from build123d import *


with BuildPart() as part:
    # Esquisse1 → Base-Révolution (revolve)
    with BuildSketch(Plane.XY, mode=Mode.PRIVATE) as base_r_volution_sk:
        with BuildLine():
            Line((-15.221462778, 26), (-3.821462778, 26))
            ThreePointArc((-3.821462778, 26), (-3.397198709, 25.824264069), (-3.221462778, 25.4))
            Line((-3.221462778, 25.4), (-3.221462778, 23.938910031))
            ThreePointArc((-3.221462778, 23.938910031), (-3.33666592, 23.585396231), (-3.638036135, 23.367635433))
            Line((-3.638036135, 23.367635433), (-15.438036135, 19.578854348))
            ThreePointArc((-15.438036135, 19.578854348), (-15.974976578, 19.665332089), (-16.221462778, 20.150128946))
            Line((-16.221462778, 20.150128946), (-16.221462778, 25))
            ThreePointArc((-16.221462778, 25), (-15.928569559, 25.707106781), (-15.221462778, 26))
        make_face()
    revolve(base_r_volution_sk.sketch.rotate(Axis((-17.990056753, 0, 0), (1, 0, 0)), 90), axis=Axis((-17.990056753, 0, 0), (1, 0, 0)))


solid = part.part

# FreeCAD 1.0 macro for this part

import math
import FreeCAD as App
import Part
import Sketcher

doc = App.newDocument("Part")
body = doc.addObject("PartDesign::Body", "Body")

sketch1 = body.newObject("Sketcher::SketchObject", "Sketch")
sketch1.AttachmentSupport = (doc.getObject("XY_Plane"), [""])
sketch1.MapMode = "FlatFace"
sketch1.addGeometry(Part.LineSegment(App.Vector(-3.8, 26, 0), App.Vector(-15.2, 26, 0)), False)
sketch1.addGeometry(Part.ArcOfCircle(Part.Circle(App.Vector(-15.2, 25, 0), App.Vector(0, 0, 1), 1), math.radians(90), math.radians(180)), False)
sketch1.addGeometry(Part.LineSegment(App.Vector(-16.2, 25, 0), App.Vector(-16.2, 20.2, 0)), False)
sketch1.addGeometry(Part.ArcOfCircle(Part.Circle(App.Vector(-15.6, 20.2, 0), App.Vector(0, 0, 1), 0.6), math.radians(-180), math.radians(-72)), False)
sketch1.addGeometry(Part.LineSegment(App.Vector(-15.4, 19.6, 0), App.Vector(-3.6, 23.4, 0)), False)
sketch1.addGeometry(Part.ArcOfCircle(Part.Circle(App.Vector(-3.8, 23.9, 0), App.Vector(0, 0, 1), 0.6), math.radians(-72), math.radians(0)), False)
sketch1.addGeometry(Part.LineSegment(App.Vector(-3.2, 23.9, 0), App.Vector(-3.2, 25.4, 0)), False)
sketch1.addGeometry(Part.ArcOfCircle(Part.Circle(App.Vector(-3.8, 25.4, 0), App.Vector(0, 0, 1), 0.6), math.radians(0), math.radians(90)), False)
sketch1.addConstraint(Sketcher.Constraint("Tangent", 0, 2, 1, 1))
sketch1.addConstraint(Sketcher.Constraint("Tangent", 1, 2, 2, 1))
sketch1.addConstraint(Sketcher.Constraint("Tangent", 2, 2, 3, 1))
sketch1.addConstraint(Sketcher.Constraint("Tangent", 3, 2, 4, 1))
sketch1.addConstraint(Sketcher.Constraint("Tangent", 4, 2, 5, 1))
sketch1.addConstraint(Sketcher.Constraint("Tangent", 5, 2, 6, 1))
sketch1.addConstraint(Sketcher.Constraint("Tangent", 6, 2, 7, 1))
sketch1.addConstraint(Sketcher.Constraint("Tangent", 7, 2, 0, 1))
sketch1.addConstraint(Sketcher.Constraint("Horizontal", 0))
sketch1.addConstraint(Sketcher.Constraint("Vertical", 2))
sketch1.addConstraint(Sketcher.Constraint("Vertical", 6))
sketch1.addConstraint(Sketcher.Constraint("Equal", 3, 5))
sketch1.addConstraint(Sketcher.Constraint("Equal", 5, 7))
sketch1.addConstraint(Sketcher.Constraint("Radius", 1, 1.0))
sketch1.addConstraint(Sketcher.Constraint("Radius", 3, 0.6))
sketch1.addConstraint(Sketcher.Constraint("DistanceX", 0, 2, 0, 1, 11.4))
sketch1.addConstraint(Sketcher.Constraint("DistanceY", -1, 1, 1, 3, 25.0))
sketch1.addConstraint(Sketcher.Constraint("DistanceY", 2, 2, 2, 1, 4.849871))
sketch1.addConstraint(Sketcher.Constraint("DistanceY", 6, 1, 6, 2, 1.46109))
sketch1.addConstraint(Sketcher.Constraint("DistanceX", 1, 3, -1, 1, 15.221463))
revolution = body.newObject("PartDesign::Revolution", "Revolution")
revolution.Profile = sketch1
revolution.ReferenceAxis = (sketch1, ["H_Axis"])
revolution.Angle = 360

doc.recompute()
